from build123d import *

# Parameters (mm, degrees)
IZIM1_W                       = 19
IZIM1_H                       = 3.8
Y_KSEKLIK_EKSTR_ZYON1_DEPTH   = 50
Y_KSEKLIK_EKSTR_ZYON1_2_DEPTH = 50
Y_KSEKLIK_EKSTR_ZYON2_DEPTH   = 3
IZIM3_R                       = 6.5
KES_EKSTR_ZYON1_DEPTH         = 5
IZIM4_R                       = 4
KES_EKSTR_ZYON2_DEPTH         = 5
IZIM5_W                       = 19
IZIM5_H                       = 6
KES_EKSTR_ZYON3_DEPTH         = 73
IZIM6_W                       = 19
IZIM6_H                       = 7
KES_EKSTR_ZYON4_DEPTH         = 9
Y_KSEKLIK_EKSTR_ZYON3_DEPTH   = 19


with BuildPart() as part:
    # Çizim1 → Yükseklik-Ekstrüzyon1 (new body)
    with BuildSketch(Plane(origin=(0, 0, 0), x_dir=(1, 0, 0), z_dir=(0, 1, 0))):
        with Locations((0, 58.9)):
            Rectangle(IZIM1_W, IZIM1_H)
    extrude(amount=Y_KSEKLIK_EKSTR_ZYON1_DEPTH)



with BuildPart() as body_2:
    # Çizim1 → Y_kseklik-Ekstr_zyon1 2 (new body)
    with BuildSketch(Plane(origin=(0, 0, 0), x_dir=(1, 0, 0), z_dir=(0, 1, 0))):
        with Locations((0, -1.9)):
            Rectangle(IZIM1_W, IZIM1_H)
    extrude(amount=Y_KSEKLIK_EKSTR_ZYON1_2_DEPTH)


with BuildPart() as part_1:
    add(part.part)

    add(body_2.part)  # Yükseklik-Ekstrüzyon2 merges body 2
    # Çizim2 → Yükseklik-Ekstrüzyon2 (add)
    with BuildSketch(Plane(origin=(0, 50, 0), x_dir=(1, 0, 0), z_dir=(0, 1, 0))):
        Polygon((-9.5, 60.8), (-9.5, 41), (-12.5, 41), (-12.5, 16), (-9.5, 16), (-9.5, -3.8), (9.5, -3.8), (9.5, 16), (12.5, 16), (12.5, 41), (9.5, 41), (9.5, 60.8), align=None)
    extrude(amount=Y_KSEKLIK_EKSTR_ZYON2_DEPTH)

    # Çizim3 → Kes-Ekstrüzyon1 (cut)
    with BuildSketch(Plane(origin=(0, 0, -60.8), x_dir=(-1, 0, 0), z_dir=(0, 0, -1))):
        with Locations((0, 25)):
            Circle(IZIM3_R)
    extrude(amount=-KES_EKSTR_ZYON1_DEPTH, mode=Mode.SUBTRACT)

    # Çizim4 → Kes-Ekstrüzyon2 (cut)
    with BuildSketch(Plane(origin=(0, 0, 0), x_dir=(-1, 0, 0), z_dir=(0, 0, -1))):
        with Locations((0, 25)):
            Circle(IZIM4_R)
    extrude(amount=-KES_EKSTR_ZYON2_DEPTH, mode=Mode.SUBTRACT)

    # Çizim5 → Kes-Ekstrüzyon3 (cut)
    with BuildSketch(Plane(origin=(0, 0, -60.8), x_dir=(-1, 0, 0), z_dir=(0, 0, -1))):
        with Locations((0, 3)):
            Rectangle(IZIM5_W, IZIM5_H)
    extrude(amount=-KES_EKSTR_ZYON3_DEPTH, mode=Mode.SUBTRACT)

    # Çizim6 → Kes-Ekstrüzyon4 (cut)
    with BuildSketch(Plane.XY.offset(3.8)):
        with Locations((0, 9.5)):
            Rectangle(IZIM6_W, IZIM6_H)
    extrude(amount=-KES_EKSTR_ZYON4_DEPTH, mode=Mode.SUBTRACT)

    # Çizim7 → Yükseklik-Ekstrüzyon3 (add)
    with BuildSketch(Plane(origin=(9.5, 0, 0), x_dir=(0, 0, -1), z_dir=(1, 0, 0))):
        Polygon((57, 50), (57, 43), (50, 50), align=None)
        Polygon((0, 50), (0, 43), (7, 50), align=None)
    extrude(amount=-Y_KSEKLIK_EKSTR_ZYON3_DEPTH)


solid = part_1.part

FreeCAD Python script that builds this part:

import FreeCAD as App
import Part
import Sketcher
Q = App.Units.Quantity

doc = App.newDocument("Part")
body = doc.addObject("PartDesign::Body", "Body")

sketch1 = doc.addObject("Sketcher::SketchObject", "Sketch")
body.addObject(sketch1)
sketch1.AttachmentSupport = (doc.XZ_Plane, [""])
sketch1.MapMode = "FlatFace"
sketch1.addGeometry([
    Part.LineSegment(App.Vector(-9.5, -60.8, 0), App.Vector(-9.5, -57, 0)),
    Part.LineSegment(App.Vector(-9.5, -57, 0), App.Vector(9.5, -57, 0)),
    Part.LineSegment(App.Vector(9.5, -57, 0), App.Vector(9.5, -60.8, 0)),
    Part.LineSegment(App.Vector(9.5, -60.8, 0), App.Vector(-9.5, -60.8, 0)),
], False)
sketch1.addConstraint([
    Sketcher.Constraint("Coincident", 0, 2, 1, 1),
    Sketcher.Constraint("Coincident", 1, 2, 2, 1),
    Sketcher.Constraint("Coincident", 2, 2, 3, 1),
    Sketcher.Constraint("Coincident", 3, 2, 0, 1),
    Sketcher.Constraint("Vertical", 0),
    Sketcher.Constraint("Horizontal", 1),
    Sketcher.Constraint("Vertical", 2),
    Sketcher.Constraint("Horizontal", 3),
    Sketcher.Constraint("DistanceX", 1, 1, 1, 2, Q("19 mm")),
    Sketcher.Constraint("DistanceY", 0, 1, 0, 2, Q("3.8 mm")),
    Sketcher.Constraint("DistanceY", 0, 2, -1, 1, Q("57 mm")),
    Sketcher.Constraint("DistanceX", 0, 2, -1, 1, Q("9.5 mm")),
])
pad1 = doc.addObject("PartDesign::Pad", "Pad")
body.addObject(pad1)
pad1.Profile = sketch1
pad1.Length = 50
pad1.Reversed = True
body2 = doc.addObject("PartDesign::Body", "Body001")

sketch2 = doc.addObject("Sketcher::SketchObject", "Sketch001")
body2.addObject(sketch2)
sketch2.AttachmentSupport = (doc.getObject("XZ_Plane001"), [""])
sketch2.MapMode = "FlatFace"
sketch2.addGeometry([
    Part.LineSegment(App.Vector(-9.5, 0, 0), App.Vector(-9.5, 3.8, 0)),
    Part.LineSegment(App.Vector(-9.5, 3.8, 0), App.Vector(9.5, 3.8, 0)),
    Part.LineSegment(App.Vector(9.5, 3.8, 0), App.Vector(9.5, 0, 0)),
    Part.LineSegment(App.Vector(9.5, 0, 0), App.Vector(-9.5, 0, 0)),
], False)
sketch2.addConstraint([
    Sketcher.Constraint("Coincident", 0, 2, 1, 1),
    Sketcher.Constraint("Coincident", 1, 2, 2, 1),
    Sketcher.Constraint("Coincident", 2, 2, 3, 1),
    Sketcher.Constraint("Coincident", 3, 2, 0, 1),
    Sketcher.Constraint("Vertical", 0),
    Sketcher.Constraint("Horizontal", 1),
    Sketcher.Constraint("Vertical", 2),
    Sketcher.Constraint("Horizontal", 3),
    Sketcher.Constraint("Symmetric", 2, 2, 3, 2, -1, 1),
    Sketcher.Constraint("DistanceX", 1, 1, 1, 2, Q("19 mm")),
    Sketcher.Constraint("DistanceY", 0, 1, 0, 2, Q("3.8 mm")),
])
pad2 = doc.addObject("PartDesign::Pad", "Pad001")
body2.addObject(pad2)
pad2.Profile = sketch2
pad2.Length = 50
pad2.Reversed = True
body.AllowCompound = True
doc.recompute()

boolean = doc.addObject("PartDesign::Boolean", "Boolean")
body.addObject(boolean)
boolean.Type = "Fuse"
boolean.addObjects([body2])

sketch3 = doc.addObject("Sketcher::SketchObject", "Sketch002")
body.addObject(sketch3)
sketch3.AttachmentSupport = (doc.XZ_Plane, [""])
sketch3.MapMode = "FlatFace"
sketch3.AttachmentOffset = App.Placement(App.Vector(0, 0, -50), App.Rotation())
sketch3.addGeometry([
    Part.LineSegment(App.Vector(-9.5, -60.8, 0), App.Vector(-9.5, -41, 0)),
    Part.LineSegment(App.Vector(-9.5, -41, 0), App.Vector(-12.5, -41, 0)),
    Part.LineSegment(App.Vector(-12.5, -41, 0), App.Vector(-12.5, -16, 0)),
    Part.LineSegment(App.Vector(-12.5, -16, 0), App.Vector(-9.5, -16, 0)),
    Part.LineSegment(App.Vector(-9.5, -16, 0), App.Vector(-9.5, 3.8, 0)),
    Part.LineSegment(App.Vector(-9.5, 3.8, 0), App.Vector(9.5, 3.8, 0)),
    Part.LineSegment(App.Vector(9.5, 3.8, 0), App.Vector(9.5, -16, 0)),
    Part.LineSegment(App.Vector(9.5, -16, 0), App.Vector(12.5, -16, 0)),
    Part.LineSegment(App.Vector(12.5, -16, 0), App.Vector(12.5, -41, 0)),
    Part.LineSegment(App.Vector(12.5, -41, 0), App.Vector(9.5, -41, 0)),
    Part.LineSegment(App.Vector(9.5, -41, 0), App.Vector(9.5, -60.8, 0)),
    Part.LineSegment(App.Vector(9.5, -60.8, 0), App.Vector(-9.5, -60.8, 0)),
], False)
sketch3.addConstraint([
    Sketcher.Constraint("Coincident", 0, 2, 1, 1),
    Sketcher.Constraint("Coincident", 1, 2, 2, 1),
    Sketcher.Constraint("Coincident", 2, 2, 3, 1),
    Sketcher.Constraint("Coincident", 3, 2, 4, 1),
    Sketcher.Constraint("Coincident", 4, 2, 5, 1),
    Sketcher.Constraint("Coincident", 5, 2, 6, 1),
    Sketcher.Constraint("Coincident", 6, 2, 7, 1),
    Sketcher.Constraint("Coincident", 7, 2, 8, 1),
    Sketcher.Constraint("Coincident", 8, 2, 9, 1),
    Sketcher.Constraint("Coincident", 9, 2, 10, 1),
    Sketcher.Constraint("Coincident", 10, 2, 11, 1),
    Sketcher.Constraint("Coincident", 11, 2, 0, 1),
    Sketcher.Constraint("Vertical", 0),
    Sketcher.Constraint("Horizontal", 1),
    Sketcher.Constraint("Vertical", 2),
    Sketcher.Constraint("Horizontal", 3),
    Sketcher.Constraint("Vertical", 4),
    Sketcher.Constraint("Horizontal", 5),
    Sketcher.Constraint("Vertical", 6),
    Sketcher.Constraint("Horizontal", 7),
    Sketcher.Constraint("Vertical", 8),
    Sketcher.Constraint("Horizontal", 9),
    Sketcher.Constraint("Vertical", 10),
    Sketcher.Constraint("Horizontal", 11),
    Sketcher.Constraint("Symmetric", 3, 2, 6, 2, -2),
    Sketcher.Constraint("Symmetric", 1, 2, 8, 2, -2),
    Sketcher.Constraint("Vertical", 0, 2, 3, 2),
    Sketcher.Constraint("Vertical", 6, 2, 9, 2),
    Sketcher.Constraint("Equal", 0, 4),
    Sketcher.Constraint("DistanceX", 1, 2, 1, 1, Q("3 mm")),
    Sketcher.Constraint("DistanceX", 5, 1, 5, 2, Q("19 mm")),
    Sketcher.Constraint("DistanceY", 2, 1, 2, 2, Q("25 mm")),
    Sketcher.Constraint("DistanceY", 0, 1, 0, 2, Q("19.8 mm")),
    Sketcher.Constraint("DistanceY", 0, 2, -1, 1, Q("41 mm")),
])
pad3 = doc.addObject("PartDesign::Pad", "Pad002")
body.addObject(pad3)
pad3.Profile = sketch3
pad3.Length = 3
pad3.Reversed = True

sketch4 = doc.addObject("Sketcher::SketchObject", "Sketch003")
body.addObject(sketch4)
sketch4.AttachmentSupport = (doc.XY_Plane, [""])
sketch4.MapMode = "FlatFace"
sketch4.AttachmentOffset = App.Placement(App.Vector(0, 0, -60.8), App.Rotation())
sketch4.addGeometry(Part.Circle(App.Vector(0, 25, 0), App.Vector(0, 0, 1), 6.5), False)
sketch4.addConstraint([
    Sketcher.Constraint("PointOnObject", 0, 3, -2),
    Sketcher.Constraint("Diameter", 0, Q("13 mm")),
    Sketcher.Constraint("DistanceY", -1, 1, 0, 3, Q("25 mm")),
])
pocket1 = doc.addObject("PartDesign::Pocket", "Pocket")
body.addObject(pocket1)
pocket1.Profile = sketch4
pocket1.Length = 5
pocket1.Reversed = True

sketch5 = doc.addObject("Sketcher::SketchObject", "Sketch004")
body.addObject(sketch5)
sketch5.AttachmentSupport = (doc.XY_Plane, [""])
sketch5.MapMode = "FlatFace"
sketch5.addGeometry(Part.Circle(App.Vector(0, 25, 0), App.Vector(0, 0, 1), 4), False)
sketch5.addConstraint([
    Sketcher.Constraint("PointOnObject", 0, 3, -2),
    Sketcher.Constraint("Diameter", 0, Q("8 mm")),
    Sketcher.Constraint("DistanceY", -1, 1, 0, 3, Q("25 mm")),
])
pocket2 = doc.addObject("PartDesign::Pocket", "Pocket001")
body.addObject(pocket2)
pocket2.Profile = sketch5
pocket2.Length = 5
pocket2.Reversed = True

sketch6 = doc.addObject("Sketcher::SketchObject", "Sketch005")
body.addObject(sketch6)
sketch6.AttachmentSupport = (doc.XY_Plane, [""])
sketch6.MapMode = "FlatFace"
sketch6.AttachmentOffset = App.Placement(App.Vector(0, 0, -60.8), App.Rotation())
sketch6.addGeometry([
    Part.LineSegment(App.Vector(9.5, 6, 0), App.Vector(9.5, 0, 0)),
    Part.LineSegment(App.Vector(9.5, 0, 0), App.Vector(-9.5, 0, 0)),
    Part.LineSegment(App.Vector(-9.5, 0, 0), App.Vector(-9.5, 6, 0)),
    Part.LineSegment(App.Vector(-9.5, 6, 0), App.Vector(9.5, 6, 0)),
], False)
sketch6.addConstraint([
    Sketcher.Constraint("Coincident", 0, 2, 1, 1),
    Sketcher.Constraint("Coincident", 1, 2, 2, 1),
    Sketcher.Constraint("Coincident", 2, 2, 3, 1),
    Sketcher.Constraint("Coincident", 3, 2, 0, 1),
    Sketcher.Constraint("Vertical", 0),
    Sketcher.Constraint("Horizontal", 1),
    Sketcher.Constraint("Vertical", 2),
    Sketcher.Constraint("Horizontal", 3),
    Sketcher.Constraint("Symmetric", 0, 2, 1, 2, -1, 1),
    Sketcher.Constraint("DistanceX", 1, 2, 1, 1, Q("19 mm")),
    Sketcher.Constraint("DistanceY", 0, 2, 0, 1, Q("6 mm")),
])
pocket3 = doc.addObject("PartDesign::Pocket", "Pocket002")
body.addObject(pocket3)
pocket3.Profile = sketch6
pocket3.Length = 73
pocket3.Reversed = True

sketch7 = doc.addObject("Sketcher::SketchObject", "Sketch006")
body.addObject(sketch7)
sketch7.AttachmentSupport = (doc.XY_Plane, [""])
sketch7.MapMode = "FlatFace"
sketch7.AttachmentOffset = App.Placement(App.Vector(0, 0, 3.8), App.Rotation())
sketch7.addGeometry([
    Part.LineSegment(App.Vector(-9.5, 13, 0), App.Vector(-9.5, 6, 0)),
    Part.LineSegment(App.Vector(-9.5, 6, 0), App.Vector(9.5, 6, 0)),
    Part.LineSegment(App.Vector(9.5, 6, 0), App.Vector(9.5, 13, 0)),
    Part.LineSegment(App.Vector(9.5, 13, 0), App.Vector(-9.5, 13, 0)),
], False)
sketch7.addConstraint([
    Sketcher.Constraint("Coincident", 0, 2, 1, 1),
    Sketcher.Constraint("Coincident", 1, 2, 2, 1),
    Sketcher.Constraint("Coincident", 2, 2, 3, 1),
    Sketcher.Constraint("Coincident", 3, 2, 0, 1),
    Sketcher.Constraint("Vertical", 0),
    Sketcher.Constraint("Horizontal", 1),
    Sketcher.Constraint("Vertical", 2),
    Sketcher.Constraint("Horizontal", 3),
    Sketcher.Constraint("DistanceX", 1, 1, 1, 2, Q("19 mm")),
    Sketcher.Constraint("DistanceY", 0, 2, 0, 1, Q("7 mm")),
    Sketcher.Constraint("DistanceY", -1, 1, 0, 2, Q("6 mm")),
    Sketcher.Constraint("DistanceX", 0, 2, -1, 1, Q("9.5 mm")),
])
pocket4 = doc.addObject("PartDesign::Pocket", "Pocket003")
body.addObject(pocket4)
pocket4.Profile = sketch7
pocket4.Length = 9

sketch8 = doc.addObject("Sketcher::SketchObject", "Sketch007")
body.addObject(sketch8)
sketch8.AttachmentSupport = (doc.YZ_Plane, [""])
sketch8.MapMode = "FlatFace"
sketch8.AttachmentOffset = App.Placement(App.Vector(0, 0, 9.5), App.Rotation())
sketch8.addGeometry([
    Part.LineSegment(App.Vector(43, -57, 0), App.Vector(50, -57, 0)),
    Part.LineSegment(App.Vector(50, -57, 0), App.Vector(50, -50, 0)),
    Part.LineSegment(App.Vector(50, -50, 0), App.Vector(43, -57, 0)),
    Part.LineSegment(App.Vector(50, 0, 0), App.Vector(43, 0, 0)),
    Part.LineSegment(App.Vector(43, 0, 0), App.Vector(50, -7, 0)),
    Part.LineSegment(App.Vector(50, -7, 0), App.Vector(50, 0, 0)),
], False)
sketch8.addConstraint([
    Sketcher.Constraint("Coincident", 0, 2, 1, 1),
    Sketcher.Constraint("Coincident", 1, 2, 2, 1),
    Sketcher.Constraint("Coincident", 2, 2, 0, 1),
    Sketcher.Constraint("Coincident", 3, 2, 4, 1),
    Sketcher.Constraint("Coincident", 4, 2, 5, 1),
    Sketcher.Constraint("Coincident", 5, 2, 3, 1),
    Sketcher.Constraint("Horizontal", 0),
    Sketcher.Constraint("Vertical", 1),
    Sketcher.Constraint("Horizontal", 3),
    Sketcher.Constraint("Vertical", 5),
    Sketcher.Constraint("PointOnObject", 3, 2, -1),
    Sketcher.Constraint("Perpendicular", 2, 4),
    Sketcher.Constraint("Vertical", 2, 2, 3, 2),
    Sketcher.Constraint("Vertical", 1, 2, 4, 2),
    Sketcher.Constraint("Equal", 3, 1),
    Sketcher.Constraint("DistanceX", 0, 1, 0, 2, Q("7 mm")),
    Sketcher.Constraint("DistanceX", -1, 1, 0, 2, Q("50 mm")),
    Sketcher.Constraint("DistanceY", 0, 2, -1, 1, Q("57 mm")),
])
pad4 = doc.addObject("PartDesign::Pad", "Pad003")
body.addObject(pad4)
pad4.Profile = sketch8
pad4.Length = 19
pad4.Reversed = True

doc.recompute()
